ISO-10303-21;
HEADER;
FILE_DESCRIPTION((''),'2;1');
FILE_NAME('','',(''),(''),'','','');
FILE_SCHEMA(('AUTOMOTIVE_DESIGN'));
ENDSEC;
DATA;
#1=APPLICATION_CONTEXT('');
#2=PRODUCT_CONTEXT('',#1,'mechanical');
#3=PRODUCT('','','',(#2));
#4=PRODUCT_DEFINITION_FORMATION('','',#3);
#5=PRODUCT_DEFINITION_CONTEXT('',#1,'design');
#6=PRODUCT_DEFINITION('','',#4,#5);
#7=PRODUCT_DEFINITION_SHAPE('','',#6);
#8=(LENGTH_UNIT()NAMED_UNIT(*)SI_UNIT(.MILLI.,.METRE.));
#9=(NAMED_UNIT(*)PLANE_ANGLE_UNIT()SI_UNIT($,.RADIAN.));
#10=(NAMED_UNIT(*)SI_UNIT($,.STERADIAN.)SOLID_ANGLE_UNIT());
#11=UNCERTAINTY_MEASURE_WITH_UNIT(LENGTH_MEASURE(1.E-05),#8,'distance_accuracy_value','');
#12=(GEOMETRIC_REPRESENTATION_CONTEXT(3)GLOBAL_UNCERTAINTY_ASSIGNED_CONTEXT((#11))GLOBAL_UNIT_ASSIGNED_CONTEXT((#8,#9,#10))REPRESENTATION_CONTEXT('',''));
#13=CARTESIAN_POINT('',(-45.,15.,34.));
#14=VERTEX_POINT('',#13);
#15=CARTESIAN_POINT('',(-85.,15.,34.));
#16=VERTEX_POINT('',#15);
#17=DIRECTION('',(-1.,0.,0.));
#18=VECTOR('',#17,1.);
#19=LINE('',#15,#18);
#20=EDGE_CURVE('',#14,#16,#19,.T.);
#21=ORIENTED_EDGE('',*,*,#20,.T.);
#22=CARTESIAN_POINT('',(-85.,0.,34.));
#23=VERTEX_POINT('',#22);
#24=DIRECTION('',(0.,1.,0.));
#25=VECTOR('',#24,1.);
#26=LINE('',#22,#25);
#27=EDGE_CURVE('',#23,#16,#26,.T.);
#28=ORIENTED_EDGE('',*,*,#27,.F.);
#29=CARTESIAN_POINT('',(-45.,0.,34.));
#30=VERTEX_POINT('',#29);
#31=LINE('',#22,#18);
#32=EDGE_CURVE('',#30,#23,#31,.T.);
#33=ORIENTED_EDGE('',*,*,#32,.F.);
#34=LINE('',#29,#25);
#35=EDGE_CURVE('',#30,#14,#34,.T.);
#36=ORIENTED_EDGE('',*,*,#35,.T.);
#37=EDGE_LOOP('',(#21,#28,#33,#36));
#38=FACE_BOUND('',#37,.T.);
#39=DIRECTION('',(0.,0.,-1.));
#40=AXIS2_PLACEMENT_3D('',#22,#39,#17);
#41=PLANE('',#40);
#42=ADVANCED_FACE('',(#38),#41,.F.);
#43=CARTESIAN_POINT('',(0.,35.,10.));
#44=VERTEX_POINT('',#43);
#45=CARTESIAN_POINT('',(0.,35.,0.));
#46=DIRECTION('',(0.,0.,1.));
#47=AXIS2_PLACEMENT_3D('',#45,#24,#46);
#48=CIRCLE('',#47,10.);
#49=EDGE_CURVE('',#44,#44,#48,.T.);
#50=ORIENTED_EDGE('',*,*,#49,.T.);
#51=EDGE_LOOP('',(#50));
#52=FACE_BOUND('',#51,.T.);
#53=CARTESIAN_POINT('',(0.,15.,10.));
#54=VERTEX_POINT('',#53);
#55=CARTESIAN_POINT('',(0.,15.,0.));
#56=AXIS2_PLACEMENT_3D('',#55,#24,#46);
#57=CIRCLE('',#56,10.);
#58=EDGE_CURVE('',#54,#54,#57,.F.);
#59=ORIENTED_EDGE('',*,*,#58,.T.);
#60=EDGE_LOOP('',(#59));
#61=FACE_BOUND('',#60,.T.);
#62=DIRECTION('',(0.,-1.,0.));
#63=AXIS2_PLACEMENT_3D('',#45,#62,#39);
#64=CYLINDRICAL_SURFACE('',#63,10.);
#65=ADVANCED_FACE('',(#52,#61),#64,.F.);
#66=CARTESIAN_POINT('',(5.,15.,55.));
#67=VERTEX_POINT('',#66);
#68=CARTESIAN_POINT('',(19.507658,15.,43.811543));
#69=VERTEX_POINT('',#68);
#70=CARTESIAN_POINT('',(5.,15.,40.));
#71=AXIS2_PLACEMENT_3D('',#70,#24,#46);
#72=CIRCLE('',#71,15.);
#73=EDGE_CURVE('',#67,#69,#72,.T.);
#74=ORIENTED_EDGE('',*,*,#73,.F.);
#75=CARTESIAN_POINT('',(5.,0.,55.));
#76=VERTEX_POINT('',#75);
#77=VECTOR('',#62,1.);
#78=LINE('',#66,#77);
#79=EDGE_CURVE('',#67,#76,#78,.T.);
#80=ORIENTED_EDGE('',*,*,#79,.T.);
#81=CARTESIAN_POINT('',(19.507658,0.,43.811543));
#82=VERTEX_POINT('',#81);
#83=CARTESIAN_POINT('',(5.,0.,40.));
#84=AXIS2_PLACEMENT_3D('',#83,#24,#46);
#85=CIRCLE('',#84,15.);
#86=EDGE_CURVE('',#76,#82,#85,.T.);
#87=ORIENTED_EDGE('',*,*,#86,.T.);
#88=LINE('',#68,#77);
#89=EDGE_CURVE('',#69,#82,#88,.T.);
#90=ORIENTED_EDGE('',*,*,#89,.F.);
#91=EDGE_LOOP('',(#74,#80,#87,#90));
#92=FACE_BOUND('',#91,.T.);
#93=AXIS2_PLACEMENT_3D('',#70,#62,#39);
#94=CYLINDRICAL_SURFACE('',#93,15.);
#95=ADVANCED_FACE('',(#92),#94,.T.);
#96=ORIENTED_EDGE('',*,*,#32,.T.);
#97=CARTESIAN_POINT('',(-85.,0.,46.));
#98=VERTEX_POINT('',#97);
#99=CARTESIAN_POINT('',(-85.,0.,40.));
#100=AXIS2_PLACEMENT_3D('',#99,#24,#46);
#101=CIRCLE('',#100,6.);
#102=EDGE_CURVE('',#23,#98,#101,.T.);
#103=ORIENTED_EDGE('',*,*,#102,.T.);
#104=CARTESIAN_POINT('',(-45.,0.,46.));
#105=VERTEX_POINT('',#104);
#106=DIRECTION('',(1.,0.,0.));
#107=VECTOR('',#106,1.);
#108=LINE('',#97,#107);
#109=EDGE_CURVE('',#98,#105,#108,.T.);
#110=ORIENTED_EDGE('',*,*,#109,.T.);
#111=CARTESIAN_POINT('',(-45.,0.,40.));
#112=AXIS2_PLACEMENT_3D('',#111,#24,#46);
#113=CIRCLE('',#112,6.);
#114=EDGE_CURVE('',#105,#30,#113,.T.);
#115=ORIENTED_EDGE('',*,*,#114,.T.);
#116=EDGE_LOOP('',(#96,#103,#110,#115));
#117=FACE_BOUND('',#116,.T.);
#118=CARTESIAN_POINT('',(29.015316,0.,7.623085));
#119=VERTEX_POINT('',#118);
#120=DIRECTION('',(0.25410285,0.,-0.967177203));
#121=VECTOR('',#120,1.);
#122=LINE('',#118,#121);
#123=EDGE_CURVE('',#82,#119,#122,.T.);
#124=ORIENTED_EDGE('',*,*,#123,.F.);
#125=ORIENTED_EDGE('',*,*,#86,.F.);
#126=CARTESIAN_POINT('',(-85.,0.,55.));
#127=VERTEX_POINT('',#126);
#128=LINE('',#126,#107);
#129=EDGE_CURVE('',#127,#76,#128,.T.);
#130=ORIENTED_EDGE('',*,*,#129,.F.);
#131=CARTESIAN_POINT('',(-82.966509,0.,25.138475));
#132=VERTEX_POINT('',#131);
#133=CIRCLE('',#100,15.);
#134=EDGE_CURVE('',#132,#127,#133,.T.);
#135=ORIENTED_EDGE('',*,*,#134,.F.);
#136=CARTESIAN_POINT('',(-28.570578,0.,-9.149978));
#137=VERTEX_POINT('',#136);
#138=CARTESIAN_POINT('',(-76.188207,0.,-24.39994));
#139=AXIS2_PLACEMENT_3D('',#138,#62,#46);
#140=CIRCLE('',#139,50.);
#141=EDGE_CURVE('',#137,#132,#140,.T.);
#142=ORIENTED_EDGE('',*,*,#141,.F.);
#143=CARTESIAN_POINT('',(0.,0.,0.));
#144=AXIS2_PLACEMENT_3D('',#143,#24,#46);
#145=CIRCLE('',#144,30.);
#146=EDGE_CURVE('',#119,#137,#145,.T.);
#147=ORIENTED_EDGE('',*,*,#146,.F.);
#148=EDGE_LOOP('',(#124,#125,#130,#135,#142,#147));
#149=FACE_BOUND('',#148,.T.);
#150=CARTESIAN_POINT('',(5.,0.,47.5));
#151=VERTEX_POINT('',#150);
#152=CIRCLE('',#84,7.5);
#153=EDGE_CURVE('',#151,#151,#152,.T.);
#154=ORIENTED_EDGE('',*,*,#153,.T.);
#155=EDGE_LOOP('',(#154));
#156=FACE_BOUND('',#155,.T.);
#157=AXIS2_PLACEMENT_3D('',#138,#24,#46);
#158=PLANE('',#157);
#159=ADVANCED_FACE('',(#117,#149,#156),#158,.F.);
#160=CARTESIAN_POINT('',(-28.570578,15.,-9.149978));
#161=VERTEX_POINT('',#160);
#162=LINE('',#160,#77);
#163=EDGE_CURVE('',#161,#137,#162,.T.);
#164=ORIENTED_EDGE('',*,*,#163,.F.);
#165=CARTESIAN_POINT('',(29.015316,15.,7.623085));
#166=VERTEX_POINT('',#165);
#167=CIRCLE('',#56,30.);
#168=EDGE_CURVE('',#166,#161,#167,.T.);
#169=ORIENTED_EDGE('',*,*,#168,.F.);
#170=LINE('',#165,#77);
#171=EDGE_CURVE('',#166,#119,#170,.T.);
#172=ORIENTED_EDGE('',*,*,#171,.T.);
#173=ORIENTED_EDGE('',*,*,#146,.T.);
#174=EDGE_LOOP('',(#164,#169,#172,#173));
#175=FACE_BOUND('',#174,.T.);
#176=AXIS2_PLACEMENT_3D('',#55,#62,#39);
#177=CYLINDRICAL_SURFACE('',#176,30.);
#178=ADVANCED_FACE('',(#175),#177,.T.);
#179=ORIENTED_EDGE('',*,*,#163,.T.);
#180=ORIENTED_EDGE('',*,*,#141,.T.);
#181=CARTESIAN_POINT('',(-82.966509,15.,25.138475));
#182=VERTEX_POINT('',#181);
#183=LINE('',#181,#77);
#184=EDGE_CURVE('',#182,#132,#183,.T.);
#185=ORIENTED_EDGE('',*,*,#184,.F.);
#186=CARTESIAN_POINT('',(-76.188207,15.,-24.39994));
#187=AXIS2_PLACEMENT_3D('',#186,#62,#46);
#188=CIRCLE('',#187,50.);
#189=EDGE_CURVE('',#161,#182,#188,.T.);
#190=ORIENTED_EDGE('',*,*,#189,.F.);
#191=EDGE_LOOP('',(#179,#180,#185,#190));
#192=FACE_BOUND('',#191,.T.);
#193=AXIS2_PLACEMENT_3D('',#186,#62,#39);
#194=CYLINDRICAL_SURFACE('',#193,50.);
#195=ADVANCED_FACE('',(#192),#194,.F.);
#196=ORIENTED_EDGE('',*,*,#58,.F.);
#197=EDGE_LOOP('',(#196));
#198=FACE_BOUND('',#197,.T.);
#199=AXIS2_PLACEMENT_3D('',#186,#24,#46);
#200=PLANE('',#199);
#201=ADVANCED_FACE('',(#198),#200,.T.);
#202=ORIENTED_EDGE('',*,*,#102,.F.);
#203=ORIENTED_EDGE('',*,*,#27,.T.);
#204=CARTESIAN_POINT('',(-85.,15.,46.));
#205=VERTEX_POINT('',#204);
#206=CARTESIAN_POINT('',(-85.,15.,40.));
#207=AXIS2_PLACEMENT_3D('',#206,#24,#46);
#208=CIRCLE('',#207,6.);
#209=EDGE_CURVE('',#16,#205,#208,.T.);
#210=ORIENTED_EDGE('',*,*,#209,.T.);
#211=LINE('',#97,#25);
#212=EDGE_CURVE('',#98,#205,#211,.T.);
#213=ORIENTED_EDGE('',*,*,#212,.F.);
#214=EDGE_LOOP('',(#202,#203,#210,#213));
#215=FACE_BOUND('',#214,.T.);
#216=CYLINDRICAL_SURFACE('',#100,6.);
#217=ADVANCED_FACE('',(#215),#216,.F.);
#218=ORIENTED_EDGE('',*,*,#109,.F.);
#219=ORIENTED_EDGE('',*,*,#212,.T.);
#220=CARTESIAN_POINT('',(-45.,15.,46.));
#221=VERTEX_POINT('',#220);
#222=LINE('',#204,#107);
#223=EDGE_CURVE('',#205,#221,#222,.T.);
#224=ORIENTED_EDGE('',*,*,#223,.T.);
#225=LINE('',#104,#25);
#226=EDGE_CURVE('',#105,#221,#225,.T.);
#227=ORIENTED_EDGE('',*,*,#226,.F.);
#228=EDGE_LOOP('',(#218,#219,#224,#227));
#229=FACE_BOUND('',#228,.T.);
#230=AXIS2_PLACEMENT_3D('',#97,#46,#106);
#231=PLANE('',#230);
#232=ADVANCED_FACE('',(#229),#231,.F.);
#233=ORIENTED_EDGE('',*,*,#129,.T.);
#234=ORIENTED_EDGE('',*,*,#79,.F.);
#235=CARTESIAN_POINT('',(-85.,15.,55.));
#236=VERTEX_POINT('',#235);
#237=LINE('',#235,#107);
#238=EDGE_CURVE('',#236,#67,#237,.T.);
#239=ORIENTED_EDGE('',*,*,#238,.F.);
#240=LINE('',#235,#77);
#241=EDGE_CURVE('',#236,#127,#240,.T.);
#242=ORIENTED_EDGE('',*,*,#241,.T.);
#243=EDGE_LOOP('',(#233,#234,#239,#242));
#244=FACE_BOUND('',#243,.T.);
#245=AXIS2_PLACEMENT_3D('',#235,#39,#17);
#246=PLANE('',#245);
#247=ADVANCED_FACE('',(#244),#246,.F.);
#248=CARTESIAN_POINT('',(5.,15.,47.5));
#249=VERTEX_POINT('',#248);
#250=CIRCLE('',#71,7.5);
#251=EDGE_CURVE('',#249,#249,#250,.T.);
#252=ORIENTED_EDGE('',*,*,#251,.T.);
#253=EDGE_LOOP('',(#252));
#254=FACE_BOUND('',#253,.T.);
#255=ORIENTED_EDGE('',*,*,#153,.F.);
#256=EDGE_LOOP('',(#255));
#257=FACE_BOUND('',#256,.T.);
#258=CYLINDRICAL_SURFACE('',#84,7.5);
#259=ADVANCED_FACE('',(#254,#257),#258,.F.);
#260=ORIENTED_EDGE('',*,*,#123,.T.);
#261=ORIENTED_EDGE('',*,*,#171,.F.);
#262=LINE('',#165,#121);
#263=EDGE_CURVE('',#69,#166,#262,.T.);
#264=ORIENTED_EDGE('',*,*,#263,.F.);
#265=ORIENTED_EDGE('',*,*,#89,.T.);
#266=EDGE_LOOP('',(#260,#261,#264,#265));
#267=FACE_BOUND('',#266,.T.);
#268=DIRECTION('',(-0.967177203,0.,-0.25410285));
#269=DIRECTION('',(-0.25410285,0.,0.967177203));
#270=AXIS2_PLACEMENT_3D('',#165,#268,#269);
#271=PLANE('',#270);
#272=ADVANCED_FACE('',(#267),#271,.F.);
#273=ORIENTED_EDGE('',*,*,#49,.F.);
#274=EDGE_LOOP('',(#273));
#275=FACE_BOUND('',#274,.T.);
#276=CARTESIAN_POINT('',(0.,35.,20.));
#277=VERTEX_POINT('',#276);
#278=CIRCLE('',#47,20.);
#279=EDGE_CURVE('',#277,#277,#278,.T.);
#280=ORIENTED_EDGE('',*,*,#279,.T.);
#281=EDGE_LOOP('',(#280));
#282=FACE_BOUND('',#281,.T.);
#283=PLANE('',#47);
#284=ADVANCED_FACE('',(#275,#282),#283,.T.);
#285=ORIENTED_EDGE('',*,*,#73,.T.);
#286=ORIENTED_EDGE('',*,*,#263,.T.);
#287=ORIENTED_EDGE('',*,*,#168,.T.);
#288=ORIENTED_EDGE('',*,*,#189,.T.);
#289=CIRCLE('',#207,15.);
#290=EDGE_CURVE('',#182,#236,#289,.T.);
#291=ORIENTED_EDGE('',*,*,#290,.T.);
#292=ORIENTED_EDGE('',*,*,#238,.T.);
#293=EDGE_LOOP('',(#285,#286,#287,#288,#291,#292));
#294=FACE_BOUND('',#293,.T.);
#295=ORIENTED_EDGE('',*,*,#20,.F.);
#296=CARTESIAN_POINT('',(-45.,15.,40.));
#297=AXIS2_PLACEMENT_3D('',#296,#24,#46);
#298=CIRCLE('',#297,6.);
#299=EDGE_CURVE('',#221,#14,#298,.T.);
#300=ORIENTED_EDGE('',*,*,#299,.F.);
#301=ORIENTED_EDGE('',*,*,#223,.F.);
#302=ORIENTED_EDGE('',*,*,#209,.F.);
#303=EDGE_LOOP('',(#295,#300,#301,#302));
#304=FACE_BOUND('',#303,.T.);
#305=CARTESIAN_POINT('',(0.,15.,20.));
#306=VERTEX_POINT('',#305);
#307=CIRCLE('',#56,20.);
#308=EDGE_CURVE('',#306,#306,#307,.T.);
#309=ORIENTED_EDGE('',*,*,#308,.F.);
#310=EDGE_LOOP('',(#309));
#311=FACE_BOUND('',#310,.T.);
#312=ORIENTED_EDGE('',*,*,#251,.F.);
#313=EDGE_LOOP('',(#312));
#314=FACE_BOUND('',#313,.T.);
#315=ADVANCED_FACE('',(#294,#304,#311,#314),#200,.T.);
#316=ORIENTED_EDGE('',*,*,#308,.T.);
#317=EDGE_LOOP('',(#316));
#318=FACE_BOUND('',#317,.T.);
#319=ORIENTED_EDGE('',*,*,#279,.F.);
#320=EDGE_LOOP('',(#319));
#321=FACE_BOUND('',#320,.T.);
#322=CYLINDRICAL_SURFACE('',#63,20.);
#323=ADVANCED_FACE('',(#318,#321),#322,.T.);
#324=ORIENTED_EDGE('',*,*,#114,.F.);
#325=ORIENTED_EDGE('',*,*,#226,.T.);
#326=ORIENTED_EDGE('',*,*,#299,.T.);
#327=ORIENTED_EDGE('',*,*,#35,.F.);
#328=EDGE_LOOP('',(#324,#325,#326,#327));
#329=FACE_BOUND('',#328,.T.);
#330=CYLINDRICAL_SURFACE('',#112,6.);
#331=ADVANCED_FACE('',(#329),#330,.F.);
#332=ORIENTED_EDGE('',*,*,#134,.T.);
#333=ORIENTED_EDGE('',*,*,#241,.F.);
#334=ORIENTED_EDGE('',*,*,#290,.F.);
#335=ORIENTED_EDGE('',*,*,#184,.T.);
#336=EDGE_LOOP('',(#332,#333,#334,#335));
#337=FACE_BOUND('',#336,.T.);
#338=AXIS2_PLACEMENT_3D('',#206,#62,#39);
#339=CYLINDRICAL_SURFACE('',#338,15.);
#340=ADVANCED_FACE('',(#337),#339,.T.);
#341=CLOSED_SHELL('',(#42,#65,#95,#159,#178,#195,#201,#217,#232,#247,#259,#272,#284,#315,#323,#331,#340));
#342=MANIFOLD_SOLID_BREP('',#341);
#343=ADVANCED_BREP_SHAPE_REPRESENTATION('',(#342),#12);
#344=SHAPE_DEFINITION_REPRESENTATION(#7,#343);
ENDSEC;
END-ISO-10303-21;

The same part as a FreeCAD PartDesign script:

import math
import FreeCAD as App
import Part
import Sketcher
Q = App.Units.Quantity

doc = App.newDocument("Part")
body = doc.addObject("PartDesign::Body", "Body")

sketch1 = body.newObject("Sketcher::SketchObject", "Sketch")
sketch1.AttachmentSupport = (doc.getObject("XZ_Plane"), [""])
sketch1.MapMode = "FlatFace"
sketch1.addGeometry(Part.LineSegment(App.Vector(-85, 55, 0), App.Vector(5, 55, 0)), False)
sketch1.addGeometry(Part.ArcOfCircle(Part.Circle(App.Vector(5, 40, 0), App.Vector(0, 0, 1), 15), math.radians(15), math.radians(90)), False)
sketch1.addGeometry(Part.LineSegment(App.Vector(20, 44, 0), App.Vector(29, 8, 0)), False)
sketch1.addGeometry(Part.ArcOfCircle(Part.Circle(App.Vector(0, 0, 0), App.Vector(0, 0, 1), 30), math.radians(-162), math.radians(15)), False)
sketch1.addGeometry(Part.ArcOfCircle(Part.Circle(App.Vector(-76, -24, 0), App.Vector(0, 0, 1), 50), math.radians(18), math.radians(98)), False)
sketch1.addGeometry(Part.ArcOfCircle(Part.Circle(App.Vector(-85, 40, 0), App.Vector(0, 0, 1), 15), math.radians(90), math.radians(278)), False)
sketch1.addConstraint(Sketcher.Constraint("Tangent", 0, 2, 1, 2))
sketch1.addConstraint(Sketcher.Constraint("Tangent", 1, 1, 2, 1))
sketch1.addConstraint(Sketcher.Constraint("Tangent", 2, 2, 3, 2))
sketch1.addConstraint(Sketcher.Constraint("Tangent", 3, 1, 4, 1))
sketch1.addConstraint(Sketcher.Constraint("Tangent", 4, 2, 5, 2))
sketch1.addConstraint(Sketcher.Constraint("Tangent", 5, 1, 0, 1))
sketch1.addConstraint(Sketcher.Constraint("Horizontal", 0))
sketch1.addConstraint(Sketcher.Constraint("Coincident", 3, 3, -1, 1))
sketch1.addConstraint(Sketcher.Constraint("Equal", 1, 5))
sketch1.addConstraint(Sketcher.Constraint("Radius", 1, Q("15 mm")))
sketch1.addConstraint(Sketcher.Constraint("Radius", 3, Q("30 mm")))
sketch1.addConstraint(Sketcher.Constraint("Radius", 4, Q("50 mm")))
sketch1.addConstraint(Sketcher.Constraint("DistanceX", 0, 1, 0, 2, Q("90 mm")))
sketch1.addConstraint(Sketcher.Constraint("DistanceX", -1, 1, 1, 3, Q("5 mm")))
sketch1.addConstraint(Sketcher.Constraint("DistanceY", -1, 1, 1, 3, Q("40 mm")))
pad1 = body.newObject("PartDesign::Pad", "Pad")
pad1.Profile = sketch1
pad1.Length = 15
pad1.Reversed = True

sketch2 = body.newObject("Sketcher::SketchObject", "Sketch001")
sketch2.AttachmentSupport = (doc.getObject("XZ_Plane"), [""])
sketch2.MapMode = "FlatFace"
sketch2.AttachmentOffset = App.Placement(App.Vector(0, 0, -15), App.Rotation())
sketch2.addGeometry(Part.Circle(App.Vector(0, 0, 0), App.Vector(0, 0, 1), 20), False)
sketch2.addGeometry(Part.Circle(App.Vector(0, 0, 0), App.Vector(0, 0, 1), 10), False)
sketch2.addConstraint(Sketcher.Constraint("Coincident", 0, 3, -1, 1))
sketch2.addConstraint(Sketcher.Constraint("Coincident", 1, 3, -1, 1))
sketch2.addConstraint(Sketcher.Constraint("Diameter", 0, Q("40 mm")))
sketch2.addConstraint(Sketcher.Constraint("Diameter", 1, Q("20 mm")))
pad2 = body.newObject("PartDesign::Pad", "Pad001")
pad2.Profile = sketch2
pad2.Length = 20
pad2.Reversed = True

sketch3 = body.newObject("Sketcher::SketchObject", "Sketch002")
sketch3.AttachmentSupport = (doc.getObject("XZ_Plane"), [""])
sketch3.MapMode = "FlatFace"
sketch3.AttachmentOffset = App.Placement(App.Vector(0, 0, -15), App.Rotation())
sketch3.addGeometry(Part.Circle(App.Vector(5, 40, 0), App.Vector(0, 0, 1), 8), False)
sketch3.addConstraint(Sketcher.Constraint("Diameter", 0, Q("15 mm")))
sketch3.addConstraint(Sketcher.Constraint("DistanceX", -1, 1, 0, 3, Q("5 mm")))
sketch3.addConstraint(Sketcher.Constraint("DistanceY", -1, 1, 0, 3, Q("40 mm")))
pocket1 = body.newObject("PartDesign::Pocket", "Pocket")
pocket1.Profile = sketch3
pocket1.Type = "ThroughAll"
pocket1.Reversed = True

sketch4 = body.newObject("Sketcher::SketchObject", "Sketch003")
sketch4.AttachmentSupport = (doc.getObject("XZ_Plane"), [""])
sketch4.MapMode = "FlatFace"
sketch4.AttachmentOffset = App.Placement(App.Vector(0, 0, -15), App.Rotation())
sketch4.addGeometry(Part.LineSegment(App.Vector(-45, 34, 0), App.Vector(-85, 34, 0)), False)
sketch4.addGeometry(Part.ArcOfCircle(Part.Circle(App.Vector(-85, 40, 0), App.Vector(0, 0, 1), 6), math.radians(90), math.radians(270)), False)
sketch4.addGeometry(Part.LineSegment(App.Vector(-85, 46, 0), App.Vector(-45, 46, 0)), False)
sketch4.addGeometry(Part.ArcOfCircle(Part.Circle(App.Vector(-45, 40, 0), App.Vector(0, 0, 1), 6), math.radians(-90), math.radians(90)), False)
sketch4.addConstraint(Sketcher.Constraint("Tangent", 0, 2, 1, 2))
sketch4.addConstraint(Sketcher.Constraint("Tangent", 1, 1, 2, 1))
sketch4.addConstraint(Sketcher.Constraint("Tangent", 2, 2, 3, 2))
sketch4.addConstraint(Sketcher.Constraint("Tangent", 3, 1, 0, 1))
sketch4.addConstraint(Sketcher.Constraint("Horizontal", 0))
sketch4.addConstraint(Sketcher.Constraint("Horizontal", 2))
sketch4.addConstraint(Sketcher.Constraint("Radius", 1, Q("6 mm")))
sketch4.addConstraint(Sketcher.Constraint("DistanceX", 0, 2, 0, 1, Q("40 mm")))
sketch4.addConstraint(Sketcher.Constraint("DistanceX", 1, 3, -1, 1, Q("85 mm")))
sketch4.addConstraint(Sketcher.Constraint("DistanceY", -1, 1, 1, 3, Q("40 mm")))
pocket2 = body.newObject("PartDesign::Pocket", "Pocket001")
pocket2.Profile = sketch4
pocket2.Type = "ThroughAll"
pocket2.Reversed = True

doc.recompute()
